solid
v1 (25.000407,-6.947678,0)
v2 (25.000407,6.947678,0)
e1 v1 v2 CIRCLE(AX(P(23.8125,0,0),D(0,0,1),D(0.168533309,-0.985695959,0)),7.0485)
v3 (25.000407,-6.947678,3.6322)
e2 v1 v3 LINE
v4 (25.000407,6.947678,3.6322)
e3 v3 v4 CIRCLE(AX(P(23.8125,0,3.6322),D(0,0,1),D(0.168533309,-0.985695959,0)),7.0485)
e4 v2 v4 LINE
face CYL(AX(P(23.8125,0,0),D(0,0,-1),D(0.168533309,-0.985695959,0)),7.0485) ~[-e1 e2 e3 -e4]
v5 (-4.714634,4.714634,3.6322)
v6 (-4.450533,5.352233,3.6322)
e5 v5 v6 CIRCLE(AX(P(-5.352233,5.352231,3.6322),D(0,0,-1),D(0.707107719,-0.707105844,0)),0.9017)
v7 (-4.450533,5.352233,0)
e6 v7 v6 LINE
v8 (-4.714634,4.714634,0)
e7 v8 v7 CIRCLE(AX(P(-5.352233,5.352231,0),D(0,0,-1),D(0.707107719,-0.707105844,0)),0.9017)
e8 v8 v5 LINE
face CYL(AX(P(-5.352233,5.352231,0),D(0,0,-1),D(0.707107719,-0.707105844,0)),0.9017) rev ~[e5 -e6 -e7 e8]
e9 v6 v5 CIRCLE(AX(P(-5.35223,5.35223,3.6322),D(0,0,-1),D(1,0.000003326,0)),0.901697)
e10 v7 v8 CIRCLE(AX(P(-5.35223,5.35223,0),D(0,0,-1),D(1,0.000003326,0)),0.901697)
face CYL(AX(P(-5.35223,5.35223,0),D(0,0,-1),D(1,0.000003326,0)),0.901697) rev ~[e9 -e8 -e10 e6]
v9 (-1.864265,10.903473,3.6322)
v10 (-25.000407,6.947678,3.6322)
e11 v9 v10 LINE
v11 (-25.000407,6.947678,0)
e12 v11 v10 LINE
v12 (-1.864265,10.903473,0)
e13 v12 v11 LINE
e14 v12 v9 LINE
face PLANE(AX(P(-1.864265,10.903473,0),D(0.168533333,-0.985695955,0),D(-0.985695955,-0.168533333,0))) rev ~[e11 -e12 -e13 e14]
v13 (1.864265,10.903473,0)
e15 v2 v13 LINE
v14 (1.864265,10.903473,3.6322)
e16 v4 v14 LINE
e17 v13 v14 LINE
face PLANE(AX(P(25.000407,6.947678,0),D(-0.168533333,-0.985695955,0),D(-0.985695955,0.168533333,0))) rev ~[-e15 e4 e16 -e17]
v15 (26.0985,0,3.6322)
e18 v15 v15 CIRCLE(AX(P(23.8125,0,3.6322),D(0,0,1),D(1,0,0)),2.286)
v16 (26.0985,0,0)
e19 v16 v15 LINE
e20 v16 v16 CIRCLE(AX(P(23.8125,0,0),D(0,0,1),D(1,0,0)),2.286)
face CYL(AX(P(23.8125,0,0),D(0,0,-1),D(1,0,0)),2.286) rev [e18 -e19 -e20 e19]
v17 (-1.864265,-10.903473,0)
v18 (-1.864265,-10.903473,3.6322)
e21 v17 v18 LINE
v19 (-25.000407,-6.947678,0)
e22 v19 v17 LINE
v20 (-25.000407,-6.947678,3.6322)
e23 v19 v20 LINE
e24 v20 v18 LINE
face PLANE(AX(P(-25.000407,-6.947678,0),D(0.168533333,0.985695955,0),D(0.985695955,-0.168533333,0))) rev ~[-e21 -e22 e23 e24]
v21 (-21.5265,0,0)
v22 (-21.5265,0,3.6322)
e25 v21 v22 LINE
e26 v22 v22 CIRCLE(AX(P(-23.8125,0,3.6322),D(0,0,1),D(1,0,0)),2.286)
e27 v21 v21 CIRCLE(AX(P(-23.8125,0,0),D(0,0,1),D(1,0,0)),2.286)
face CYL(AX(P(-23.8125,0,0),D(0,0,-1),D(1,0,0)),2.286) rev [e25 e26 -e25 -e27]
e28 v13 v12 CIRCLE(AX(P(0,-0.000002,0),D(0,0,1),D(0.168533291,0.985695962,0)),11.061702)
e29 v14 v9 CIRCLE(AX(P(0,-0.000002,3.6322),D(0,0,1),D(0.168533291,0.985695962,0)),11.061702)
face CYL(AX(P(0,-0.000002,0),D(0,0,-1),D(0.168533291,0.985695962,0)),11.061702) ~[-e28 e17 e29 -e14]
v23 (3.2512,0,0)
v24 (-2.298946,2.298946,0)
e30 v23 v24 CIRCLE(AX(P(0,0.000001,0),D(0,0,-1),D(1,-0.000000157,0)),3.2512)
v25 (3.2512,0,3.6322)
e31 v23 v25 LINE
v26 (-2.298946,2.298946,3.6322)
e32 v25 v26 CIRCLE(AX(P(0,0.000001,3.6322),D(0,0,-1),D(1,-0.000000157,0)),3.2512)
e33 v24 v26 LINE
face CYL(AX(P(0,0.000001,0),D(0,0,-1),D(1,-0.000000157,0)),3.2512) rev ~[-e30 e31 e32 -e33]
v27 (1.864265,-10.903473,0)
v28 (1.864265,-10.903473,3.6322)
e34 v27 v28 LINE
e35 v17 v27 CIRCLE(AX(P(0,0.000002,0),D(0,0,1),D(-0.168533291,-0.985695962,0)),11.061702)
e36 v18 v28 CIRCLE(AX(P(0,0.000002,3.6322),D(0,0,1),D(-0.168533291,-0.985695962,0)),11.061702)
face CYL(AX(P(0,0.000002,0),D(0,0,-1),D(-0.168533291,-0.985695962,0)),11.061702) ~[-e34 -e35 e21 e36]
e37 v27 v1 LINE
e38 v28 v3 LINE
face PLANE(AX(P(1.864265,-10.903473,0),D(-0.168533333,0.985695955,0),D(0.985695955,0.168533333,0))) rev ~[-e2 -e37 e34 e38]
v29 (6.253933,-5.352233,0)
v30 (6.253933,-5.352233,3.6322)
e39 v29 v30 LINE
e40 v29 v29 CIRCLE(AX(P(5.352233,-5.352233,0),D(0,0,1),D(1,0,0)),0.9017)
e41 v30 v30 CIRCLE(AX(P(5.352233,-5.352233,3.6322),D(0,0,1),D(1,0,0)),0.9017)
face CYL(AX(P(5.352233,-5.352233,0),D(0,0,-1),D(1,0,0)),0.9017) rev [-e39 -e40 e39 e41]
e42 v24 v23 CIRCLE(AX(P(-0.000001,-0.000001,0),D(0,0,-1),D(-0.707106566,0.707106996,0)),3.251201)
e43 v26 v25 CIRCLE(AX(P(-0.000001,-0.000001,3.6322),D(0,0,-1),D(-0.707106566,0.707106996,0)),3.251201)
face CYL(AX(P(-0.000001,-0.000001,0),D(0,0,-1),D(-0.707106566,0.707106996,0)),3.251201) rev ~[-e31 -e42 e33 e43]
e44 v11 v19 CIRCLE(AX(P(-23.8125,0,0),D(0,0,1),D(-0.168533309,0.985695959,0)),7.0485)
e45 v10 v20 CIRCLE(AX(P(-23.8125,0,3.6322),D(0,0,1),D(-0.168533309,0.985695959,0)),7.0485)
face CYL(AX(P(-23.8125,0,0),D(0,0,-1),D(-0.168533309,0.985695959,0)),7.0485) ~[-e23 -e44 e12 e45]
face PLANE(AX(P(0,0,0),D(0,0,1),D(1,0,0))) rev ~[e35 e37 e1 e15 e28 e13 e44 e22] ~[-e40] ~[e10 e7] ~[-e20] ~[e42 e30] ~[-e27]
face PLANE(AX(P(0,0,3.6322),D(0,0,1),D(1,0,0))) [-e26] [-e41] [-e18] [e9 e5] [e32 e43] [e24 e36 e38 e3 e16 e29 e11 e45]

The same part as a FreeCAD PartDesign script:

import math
import FreeCAD as App
import Part
import Sketcher
Q = App.Units.Quantity

doc = App.newDocument("Part")
params = doc.addObject("Spreadsheet::Sheet", "Params")
for row, (alias, value) in enumerate([
    ("sketch1_diameter", "0.18 in"),
    ("sketch1_diameter2", "0.071 in"),
    ("sketch1_radius", "0.128 in"),
    ("pad1_length", "0.143 in"),
], start=1):
    params.set(f"A{row}", alias)
    params.set(f"B{row}", "=" + value)
    params.setAlias(f"B{row}", alias)

body = doc.addObject("PartDesign::Body", "Body")

# Sketch on XY plane
sketch1 = body.newObject("Sketcher::SketchObject", "Sketch")
sketch1.AttachmentSupport = (doc.getObject("XY_Plane"), [""])
sketch1.MapMode = "FlatFace"
sketch1.addGeometry([
    Part.LineSegment(App.Vector(25.000407, 6.947678, 0), App.Vector(1.864265, 10.903473, 0)),  # 0
    Part.ArcOfCircle(Part.Circle(App.Vector(0, -0.000002, 0), App.Vector(0, 0, 1), 11.061702), math.radians(80.297448), math.radians(99.702552)),  # 1
    Part.LineSegment(App.Vector(-1.864265, 10.903473, 0), App.Vector(-25.000407, 6.947678, 0)),  # 2
    Part.ArcOfCircle(Part.Circle(App.Vector(-23.8125, 0, 0), App.Vector(0, 0, 1), 7.0485), math.radians(99.702553), math.radians(260.297447)),  # 3
    Part.LineSegment(App.Vector(-25.000407, -6.947678, 0), App.Vector(-1.864265, -10.903473, 0)),  # 4
    Part.ArcOfCircle(Part.Circle(App.Vector(0, 0.000002, 0), App.Vector(0, 0, 1), 11.061702), math.radians(-99.702552), math.radians(-80.297448)),  # 5
    Part.LineSegment(App.Vector(1.864265, -10.903473, 0), App.Vector(25.000407, -6.947678, 0)),  # 6
    Part.ArcOfCircle(Part.Circle(App.Vector(23.8125, 0, 0), App.Vector(0, 0, 1), 7.0485), math.radians(-80.297447), math.radians(80.297447)),  # 7
    Part.Circle(App.Vector(5.352233, -5.352233, 0), App.Vector(0, 0, 1), 0.9017),  # 8
    Part.Circle(App.Vector(-23.8125, 0, 0), App.Vector(0, 0, 1), 2.286),  # 9
    Part.ArcOfCircle(Part.Circle(App.Vector(0, 0.000001, 0), App.Vector(0, 0, 1), 3.2512), math.radians(135.000005), math.radians(359.999991)),  # 10
    Part.ArcOfCircle(Part.Circle(App.Vector(-0.000001, -0.000001, 0), App.Vector(0, 0, 1), 3.251201), math.radians(0.000013), math.radians(134.999983)),  # 11
    Part.ArcOfCircle(Part.Circle(App.Vector(-5.352233, 5.352231, 0), App.Vector(0, 0, 1), 0.9017), math.radians(0.000101), math.radians(315.000076)),  # 12
    Part.ArcOfCircle(Part.Circle(App.Vector(-5.35223, 5.35223, 0), App.Vector(0, 0, 1), 0.901697), math.radians(-45.000014), math.radians(0.000191)),  # 13
    Part.Circle(App.Vector(23.8125, 0, 0), App.Vector(0, 0, 1), 2.286),  # 14
], False)
sketch1.addConstraint([
    Sketcher.Constraint("Tangent", 0, 2, 1, 1),
    Sketcher.Constraint("Tangent", 1, 2, 2, 1),
    Sketcher.Constraint("Tangent", 2, 2, 3, 1),
    Sketcher.Constraint("Tangent", 3, 2, 4, 1),
    Sketcher.Constraint("Tangent", 4, 2, 5, 1),
    Sketcher.Constraint("Tangent", 5, 2, 6, 1),
    Sketcher.Constraint("Tangent", 6, 2, 7, 1),
    Sketcher.Constraint("Tangent", 7, 2, 0, 1),
    Sketcher.Constraint("Tangent", 10, 1, 11, 2),
    Sketcher.Constraint("Coincident", 11, 1, 10, 2),
    Sketcher.Constraint("Tangent", 12, 1, 13, 2),
    Sketcher.Constraint("Coincident", 13, 1, 12, 2),
    Sketcher.Constraint("Coincident", 1, 3, -1, 1),
    Sketcher.Constraint("Coincident", 5, 3, -1, 1),
    Sketcher.Constraint("Coincident", 10, 3, -1, 1),
    Sketcher.Constraint("Coincident", 9, 3, 3, 3),
    Sketcher.Constraint("Coincident", 14, 3, 7, 3),
    Sketcher.Constraint("Equal", 1, 5),
    Sketcher.Constraint("Equal", 3, 7),
    Sketcher.Constraint("Equal", 8, 12),
    Sketcher.Constraint("Equal", 9, 14),
    Sketcher.Constraint("Symmetric", 3, 3, 7, 3, -1, 1),
    Sketcher.Constraint("Symmetric", 8, 3, 12, 3, -1, 1),
    Sketcher.Constraint("PointOnObject", 3, 3, -1),
    Sketcher.Constraint("PointOnObject", 11, 1, -1),
    Sketcher.Constraint("Diameter", 9, Q("0.18 in")),
    Sketcher.Constraint("Diameter", 8, Q("0.071 in")),
    Sketcher.Constraint("Radius", 10, Q("0.128 in")),
    Sketcher.Constraint("Radius", 1, Q("0.4355001 in")),
    Sketcher.Constraint("Radius", 3, Q("0.2775 in")),
    Sketcher.Constraint("DistanceX", 3, 3, -1, 1, Q("0.9375 in")),
    Sketcher.Constraint("DistanceX", 12, 3, 0, 2, 7.216498),
    Sketcher.Constraint("DistanceX", 13, 1, 12, 1, 0.264101),
    Sketcher.Constraint("DistanceY", 13, 1, 12, 1, 0.637599),
    Sketcher.Constraint("DistanceY", -1, 1, 12, 3, 5.352231),
    Sketcher.Constraint("DistanceX", 13, 1, 10, 1, 2.415688),
])
sketch1.setExpression("Constraints[25]", "Params.sketch1_diameter")
sketch1.setExpression("Constraints[26]", "Params.sketch1_diameter2")
sketch1.setExpression("Constraints[27]", "Params.sketch1_radius")
pad1 = body.newObject("PartDesign::Pad", "Pad")
pad1.Profile = sketch1
pad1.setExpression("Length", "Params.pad1_length")

doc.recompute()
